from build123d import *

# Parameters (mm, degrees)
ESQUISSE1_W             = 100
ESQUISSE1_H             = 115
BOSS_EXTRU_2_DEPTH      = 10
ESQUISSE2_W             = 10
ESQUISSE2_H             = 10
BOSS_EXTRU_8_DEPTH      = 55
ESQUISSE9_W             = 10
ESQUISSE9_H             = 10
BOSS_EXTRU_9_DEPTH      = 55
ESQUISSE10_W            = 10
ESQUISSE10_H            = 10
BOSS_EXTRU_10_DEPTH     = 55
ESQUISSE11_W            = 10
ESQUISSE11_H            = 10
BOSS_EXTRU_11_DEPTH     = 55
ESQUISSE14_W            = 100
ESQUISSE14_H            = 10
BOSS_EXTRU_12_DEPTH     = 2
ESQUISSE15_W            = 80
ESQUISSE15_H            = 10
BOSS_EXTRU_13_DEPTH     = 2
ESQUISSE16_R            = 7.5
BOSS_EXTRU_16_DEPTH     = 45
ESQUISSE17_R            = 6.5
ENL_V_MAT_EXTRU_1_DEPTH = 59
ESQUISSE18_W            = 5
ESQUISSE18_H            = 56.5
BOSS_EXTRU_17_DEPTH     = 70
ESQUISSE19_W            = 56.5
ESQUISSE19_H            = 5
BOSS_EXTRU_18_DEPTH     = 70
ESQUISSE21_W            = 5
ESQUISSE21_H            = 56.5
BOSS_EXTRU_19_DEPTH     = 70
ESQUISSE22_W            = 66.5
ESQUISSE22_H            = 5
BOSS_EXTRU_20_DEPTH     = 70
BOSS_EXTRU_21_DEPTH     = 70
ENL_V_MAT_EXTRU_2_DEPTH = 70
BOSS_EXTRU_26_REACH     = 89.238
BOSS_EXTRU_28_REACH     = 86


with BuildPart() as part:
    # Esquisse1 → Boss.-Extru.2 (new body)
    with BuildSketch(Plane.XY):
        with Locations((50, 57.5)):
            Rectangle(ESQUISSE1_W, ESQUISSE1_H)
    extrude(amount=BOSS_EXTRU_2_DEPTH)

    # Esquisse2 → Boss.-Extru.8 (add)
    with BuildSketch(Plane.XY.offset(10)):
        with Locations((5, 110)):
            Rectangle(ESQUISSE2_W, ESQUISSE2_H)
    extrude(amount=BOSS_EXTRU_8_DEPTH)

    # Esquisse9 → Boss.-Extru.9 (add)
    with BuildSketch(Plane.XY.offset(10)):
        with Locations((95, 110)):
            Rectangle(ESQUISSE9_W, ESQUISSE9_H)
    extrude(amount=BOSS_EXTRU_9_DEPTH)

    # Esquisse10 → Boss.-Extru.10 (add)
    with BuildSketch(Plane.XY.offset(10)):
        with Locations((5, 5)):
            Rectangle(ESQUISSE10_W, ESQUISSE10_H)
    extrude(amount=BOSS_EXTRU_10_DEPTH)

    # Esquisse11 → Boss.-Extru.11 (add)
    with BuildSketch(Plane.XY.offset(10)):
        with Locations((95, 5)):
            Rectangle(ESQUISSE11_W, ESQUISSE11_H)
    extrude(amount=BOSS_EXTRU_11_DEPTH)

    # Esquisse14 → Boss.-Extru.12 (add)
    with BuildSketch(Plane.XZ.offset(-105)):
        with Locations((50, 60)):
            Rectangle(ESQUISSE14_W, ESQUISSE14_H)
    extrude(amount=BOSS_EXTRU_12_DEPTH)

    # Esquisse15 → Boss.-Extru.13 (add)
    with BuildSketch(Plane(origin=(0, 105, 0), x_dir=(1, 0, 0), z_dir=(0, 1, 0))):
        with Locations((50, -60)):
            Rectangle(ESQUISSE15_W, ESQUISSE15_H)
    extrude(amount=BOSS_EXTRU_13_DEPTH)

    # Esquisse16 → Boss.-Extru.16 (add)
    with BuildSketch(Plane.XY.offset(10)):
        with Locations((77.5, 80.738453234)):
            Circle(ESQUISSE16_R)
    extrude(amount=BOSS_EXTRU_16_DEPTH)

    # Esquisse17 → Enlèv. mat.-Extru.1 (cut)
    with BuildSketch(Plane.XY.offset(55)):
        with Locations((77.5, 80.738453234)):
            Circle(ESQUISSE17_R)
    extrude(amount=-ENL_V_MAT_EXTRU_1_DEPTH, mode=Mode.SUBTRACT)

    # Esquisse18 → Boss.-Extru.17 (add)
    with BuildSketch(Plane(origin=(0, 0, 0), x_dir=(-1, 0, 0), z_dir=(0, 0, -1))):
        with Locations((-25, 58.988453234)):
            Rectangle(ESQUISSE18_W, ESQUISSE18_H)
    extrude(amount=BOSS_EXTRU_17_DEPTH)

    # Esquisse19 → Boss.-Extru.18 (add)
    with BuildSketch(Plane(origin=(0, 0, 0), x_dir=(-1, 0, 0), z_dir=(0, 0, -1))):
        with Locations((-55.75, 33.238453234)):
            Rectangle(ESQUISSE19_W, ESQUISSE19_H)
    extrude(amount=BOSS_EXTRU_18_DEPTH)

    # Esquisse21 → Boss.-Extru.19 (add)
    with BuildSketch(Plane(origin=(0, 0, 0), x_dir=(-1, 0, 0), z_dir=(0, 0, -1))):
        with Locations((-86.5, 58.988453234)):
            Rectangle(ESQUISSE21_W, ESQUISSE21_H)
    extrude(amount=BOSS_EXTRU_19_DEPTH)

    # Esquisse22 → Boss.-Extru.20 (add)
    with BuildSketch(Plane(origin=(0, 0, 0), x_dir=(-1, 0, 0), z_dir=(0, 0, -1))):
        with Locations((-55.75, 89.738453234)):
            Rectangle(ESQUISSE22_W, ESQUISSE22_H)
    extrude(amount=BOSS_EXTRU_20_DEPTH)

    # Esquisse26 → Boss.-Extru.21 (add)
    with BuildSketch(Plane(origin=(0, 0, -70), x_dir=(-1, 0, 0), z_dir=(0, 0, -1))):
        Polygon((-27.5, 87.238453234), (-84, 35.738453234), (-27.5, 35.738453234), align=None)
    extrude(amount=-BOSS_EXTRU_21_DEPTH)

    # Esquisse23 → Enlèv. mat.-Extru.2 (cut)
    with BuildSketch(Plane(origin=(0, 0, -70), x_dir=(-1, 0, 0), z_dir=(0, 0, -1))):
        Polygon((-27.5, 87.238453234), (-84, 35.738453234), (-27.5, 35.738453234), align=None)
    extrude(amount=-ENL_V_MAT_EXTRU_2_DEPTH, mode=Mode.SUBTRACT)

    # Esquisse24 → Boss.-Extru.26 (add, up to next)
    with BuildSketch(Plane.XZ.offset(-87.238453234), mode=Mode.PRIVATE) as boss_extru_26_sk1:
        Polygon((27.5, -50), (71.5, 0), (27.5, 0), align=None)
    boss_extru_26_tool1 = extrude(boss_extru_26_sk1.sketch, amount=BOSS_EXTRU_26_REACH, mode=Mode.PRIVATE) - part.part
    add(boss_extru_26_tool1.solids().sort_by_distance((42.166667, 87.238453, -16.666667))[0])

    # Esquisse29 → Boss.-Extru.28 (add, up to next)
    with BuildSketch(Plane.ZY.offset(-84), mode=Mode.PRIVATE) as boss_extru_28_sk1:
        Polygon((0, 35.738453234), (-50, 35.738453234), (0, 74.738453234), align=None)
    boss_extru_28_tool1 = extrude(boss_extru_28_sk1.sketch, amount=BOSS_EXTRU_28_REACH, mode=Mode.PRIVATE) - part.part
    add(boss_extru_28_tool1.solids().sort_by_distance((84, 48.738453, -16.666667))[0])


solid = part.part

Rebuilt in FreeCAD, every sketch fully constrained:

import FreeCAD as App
import Part
import Sketcher
Q = App.Units.Quantity

doc = App.newDocument("Part")
body = doc.addObject("PartDesign::Body", "Body")

sketch1 = body.newObject("Sketcher::SketchObject", "Sketch")
sketch1.AttachmentSupport = (doc.getObject("XY_Plane"), [""])
sketch1.MapMode = "FlatFace"
sketch1.addGeometry([
    Part.LineSegment(App.Vector(0, 115, 0), App.Vector(0, 0, 0)),
    Part.LineSegment(App.Vector(0, 0, 0), App.Vector(100, 0, 0)),
    Part.LineSegment(App.Vector(100, 0, 0), App.Vector(100, 115, 0)),
    Part.LineSegment(App.Vector(100, 115, 0), App.Vector(0, 115, 0)),
], False)
sketch1.addConstraint([
    Sketcher.Constraint("Coincident", 0, 2, 1, 1),
    Sketcher.Constraint("Coincident", 1, 2, 2, 1),
    Sketcher.Constraint("Coincident", 2, 2, 3, 1),
    Sketcher.Constraint("Coincident", 3, 2, 0, 1),
    Sketcher.Constraint("Vertical", 0),
    Sketcher.Constraint("Horizontal", 1),
    Sketcher.Constraint("Vertical", 2),
    Sketcher.Constraint("Horizontal", 3),
    Sketcher.Constraint("Coincident", 0, 2, -1, 1),
    Sketcher.Constraint("DistanceX", 1, 1, 1, 2, Q("100 mm")),
    Sketcher.Constraint("DistanceY", 0, 2, 0, 1, Q("115 mm")),
])
pad1 = body.newObject("PartDesign::Pad", "Pad")
pad1.Profile = sketch1
pad1.Length = 10

sketch2 = body.newObject("Sketcher::SketchObject", "Sketch001")
sketch2.AttachmentSupport = (doc.getObject("XY_Plane"), [""])
sketch2.MapMode = "FlatFace"
sketch2.AttachmentOffset = App.Placement(App.Vector(0, 0, 10), App.Rotation())
sketch2.addGeometry([
    Part.LineSegment(App.Vector(0, 115, 0), App.Vector(0, 105, 0)),
    Part.LineSegment(App.Vector(0, 105, 0), App.Vector(10, 105, 0)),
    Part.LineSegment(App.Vector(10, 105, 0), App.Vector(10, 115, 0)),
    Part.LineSegment(App.Vector(10, 115, 0), App.Vector(0, 115, 0)),
], False)
sketch2.addConstraint([
    Sketcher.Constraint("Coincident", 0, 2, 1, 1),
    Sketcher.Constraint("Coincident", 1, 2, 2, 1),
    Sketcher.Constraint("Coincident", 2, 2, 3, 1),
    Sketcher.Constraint("Coincident", 3, 2, 0, 1),
    Sketcher.Constraint("Vertical", 0),
    Sketcher.Constraint("Horizontal", 1),
    Sketcher.Constraint("Vertical", 2),
    Sketcher.Constraint("Horizontal", 3),
    Sketcher.Constraint("PointOnObject", 0, 2, -2),
    Sketcher.Constraint("Equal", 3, 0),
    Sketcher.Constraint("DistanceX", 1, 1, 1, 2, Q("10 mm")),
    Sketcher.Constraint("DistanceY", -1, 1, 0, 2, Q("105 mm")),
])
pad2 = body.newObject("PartDesign::Pad", "Pad001")
pad2.Profile = sketch2
pad2.Length = 55

sketch3 = body.newObject("Sketcher::SketchObject", "Sketch002")
sketch3.AttachmentSupport = (doc.getObject("XY_Plane"), [""])
sketch3.MapMode = "FlatFace"
sketch3.AttachmentOffset = App.Placement(App.Vector(0, 0, 10), App.Rotation())
sketch3.addGeometry([
    Part.LineSegment(App.Vector(90, 115, 0), App.Vector(90, 105, 0)),
    Part.LineSegment(App.Vector(90, 105, 0), App.Vector(100, 105, 0)),
    Part.LineSegment(App.Vector(100, 105, 0), App.Vector(100, 115, 0)),
    Part.LineSegment(App.Vector(100, 115, 0), App.Vector(90, 115, 0)),
], False)
sketch3.addConstraint([
    Sketcher.Constraint("Coincident", 0, 2, 1, 1),
    Sketcher.Constraint("Coincident", 1, 2, 2, 1),
    Sketcher.Constraint("Coincident", 2, 2, 3, 1),
    Sketcher.Constraint("Coincident", 3, 2, 0, 1),
    Sketcher.Constraint("Vertical", 0),
    Sketcher.Constraint("Horizontal", 1),
    Sketcher.Constraint("Vertical", 2),
    Sketcher.Constraint("Horizontal", 3),
    Sketcher.Constraint("Equal", 3, 0),
    Sketcher.Constraint("DistanceX", 1, 1, 1, 2, Q("10 mm")),
    Sketcher.Constraint("DistanceX", -1, 1, 0, 2, Q("90 mm")),
    Sketcher.Constraint("DistanceY", -1, 1, 0, 2, Q("105 mm")),
])
pad3 = body.newObject("PartDesign::Pad", "Pad002")
pad3.Profile = sketch3
pad3.Length = 55

sketch4 = body.newObject("Sketcher::SketchObject", "Sketch003")
sketch4.AttachmentSupport = (doc.getObject("XY_Plane"), [""])
sketch4.MapMode = "FlatFace"
sketch4.AttachmentOffset = App.Placement(App.Vector(0, 0, 10), App.Rotation())
sketch4.addGeometry([
    Part.LineSegment(App.Vector(0, 10, 0), App.Vector(0, 0, 0)),
    Part.LineSegment(App.Vector(0, 0, 0), App.Vector(10, 0, 0)),
    Part.LineSegment(App.Vector(10, 0, 0), App.Vector(10, 10, 0)),
    Part.LineSegment(App.Vector(10, 10, 0), App.Vector(0, 10, 0)),
], False)
sketch4.addConstraint([
    Sketcher.Constraint("Coincident", 0, 2, 1, 1),
    Sketcher.Constraint("Coincident", 1, 2, 2, 1),
    Sketcher.Constraint("Coincident", 2, 2, 3, 1),
    Sketcher.Constraint("Coincident", 3, 2, 0, 1),
    Sketcher.Constraint("Vertical", 0),
    Sketcher.Constraint("Horizontal", 1),
    Sketcher.Constraint("Vertical", 2),
    Sketcher.Constraint("Horizontal", 3),
    Sketcher.Constraint("Coincident", 0, 2, -1, 1),
    Sketcher.Constraint("Equal", 3, 0),
    Sketcher.Constraint("DistanceX", 1, 1, 1, 2, Q("10 mm")),
])
pad4 = body.newObject("PartDesign::Pad", "Pad003")
pad4.Profile = sketch4
pad4.Length = 55

sketch5 = body.newObject("Sketcher::SketchObject", "Sketch004")
sketch5.AttachmentSupport = (doc.getObject("XY_Plane"), [""])
sketch5.MapMode = "FlatFace"
sketch5.AttachmentOffset = App.Placement(App.Vector(0, 0, 10), App.Rotation())
sketch5.addGeometry([
    Part.LineSegment(App.Vector(90, 10, 0), App.Vector(90, 0, 0)),
    Part.LineSegment(App.Vector(90, 0, 0), App.Vector(100, 0, 0)),
    Part.LineSegment(App.Vector(100, 0, 0), App.Vector(100, 10, 0)),
    Part.LineSegment(App.Vector(100, 10, 0), App.Vector(90, 10, 0)),
], False)
sketch5.addConstraint([
    Sketcher.Constraint("Coincident", 0, 2, 1, 1),
    Sketcher.Constraint("Coincident", 1, 2, 2, 1),
    Sketcher.Constraint("Coincident", 2, 2, 3, 1),
    Sketcher.Constraint("Coincident", 3, 2, 0, 1),
    Sketcher.Constraint("Vertical", 0),
    Sketcher.Constraint("Horizontal", 1),
    Sketcher.Constraint("Vertical", 2),
    Sketcher.Constraint("Horizontal", 3),
    Sketcher.Constraint("PointOnObject", 0, 2, -1),
    Sketcher.Constraint("Equal", 3, 0),
    Sketcher.Constraint("DistanceX", 1, 1, 1, 2, Q("10 mm")),
    Sketcher.Constraint("DistanceX", -1, 1, 0, 2, Q("90 mm")),
])
pad5 = body.newObject("PartDesign::Pad", "Pad004")
pad5.Profile = sketch5
pad5.Length = 55

sketch6 = body.newObject("Sketcher::SketchObject", "Sketch005")
sketch6.AttachmentSupport = (doc.getObject("XZ_Plane"), [""])
sketch6.MapMode = "FlatFace"
sketch6.AttachmentOffset = App.Placement(App.Vector(0, 0, -105), App.Rotation())
sketch6.addGeometry([
    Part.LineSegment(App.Vector(0, 65, 0), App.Vector(0, 55, 0)),
    Part.LineSegment(App.Vector(0, 55, 0), App.Vector(100, 55, 0)),
    Part.LineSegment(App.Vector(100, 55, 0), App.Vector(100, 65, 0)),
    Part.LineSegment(App.Vector(100, 65, 0), App.Vector(0, 65, 0)),
], False)
sketch6.addConstraint([
    Sketcher.Constraint("Coincident", 0, 2, 1, 1),
    Sketcher.Constraint("Coincident", 1, 2, 2, 1),
    Sketcher.Constraint("Coincident", 2, 2, 3, 1),
    Sketcher.Constraint("Coincident", 3, 2, 0, 1),
    Sketcher.Constraint("Vertical", 0),
    Sketcher.Constraint("Horizontal", 1),
    Sketcher.Constraint("Vertical", 2),
    Sketcher.Constraint("Horizontal", 3),
    Sketcher.Constraint("PointOnObject", 0, 2, -2),
    Sketcher.Constraint("DistanceX", 1, 1, 1, 2, Q("100 mm")),
    Sketcher.Constraint("DistanceY", 0, 2, 0, 1, Q("10 mm")),
    Sketcher.Constraint("DistanceY", -1, 1, 0, 2, Q("55 mm")),
])
pad6 = body.newObject("PartDesign::Pad", "Pad005")
pad6.Profile = sketch6
pad6.Length = 2

sketch7 = body.newObject("Sketcher::SketchObject", "Sketch006")
sketch7.AttachmentSupport = (doc.getObject("XZ_Plane"), [""])
sketch7.MapMode = "FlatFace"
sketch7.AttachmentOffset = App.Placement(App.Vector(0, 0, -105), App.Rotation())
sketch7.addGeometry([
    Part.LineSegment(App.Vector(10, 55, 0), App.Vector(10, 65, 0)),
    Part.LineSegment(App.Vector(10, 65, 0), App.Vector(90, 65, 0)),
    Part.LineSegment(App.Vector(90, 65, 0), App.Vector(90, 55, 0)),
    Part.LineSegment(App.Vector(90, 55, 0), App.Vector(10, 55, 0)),
], False)
sketch7.addConstraint([
    Sketcher.Constraint("Coincident", 0, 2, 1, 1),
    Sketcher.Constraint("Coincident", 1, 2, 2, 1),
    Sketcher.Constraint("Coincident", 2, 2, 3, 1),
    Sketcher.Constraint("Coincident", 3, 2, 0, 1),
    Sketcher.Constraint("Vertical", 0),
    Sketcher.Constraint("Horizontal", 1),
    Sketcher.Constraint("Vertical", 2),
    Sketcher.Constraint("Horizontal", 3),
    Sketcher.Constraint("DistanceX", 1, 1, 1, 2, Q("80 mm")),
    Sketcher.Constraint("DistanceY", 0, 1, 0, 2, Q("10 mm")),
    Sketcher.Constraint("DistanceX", -1, 1, 0, 2, Q("10 mm")),
    Sketcher.Constraint("DistanceY", -1, 1, 0, 2, Q("65 mm")),
])
pad7 = body.newObject("PartDesign::Pad", "Pad006")
pad7.Profile = sketch7
pad7.Length = 2
pad7.Reversed = True

sketch8 = body.newObject("Sketcher::SketchObject", "Sketch007")
sketch8.AttachmentSupport = (doc.getObject("XY_Plane"), [""])
sketch8.MapMode = "FlatFace"
sketch8.AttachmentOffset = App.Placement(App.Vector(0, 0, 10), App.Rotation())
sketch8.addGeometry(Part.Circle(App.Vector(78, 81, 0), App.Vector(0, 0, 1), 8), False)
sketch8.addConstraint([
    Sketcher.Constraint("Diameter", 0, Q("15 mm")),
    Sketcher.Constraint("DistanceX", -1, 1, 0, 3, Q("77.5 mm")),
    Sketcher.Constraint("DistanceY", -1, 1, 0, 3, Q("80.738453 mm")),
])
pad8 = body.newObject("PartDesign::Pad", "Pad007")
pad8.Profile = sketch8
pad8.Length = 45

sketch9 = body.newObject("Sketcher::SketchObject", "Sketch008")
sketch9.AttachmentSupport = (doc.getObject("XY_Plane"), [""])
sketch9.MapMode = "FlatFace"
sketch9.AttachmentOffset = App.Placement(App.Vector(0, 0, 55), App.Rotation())
sketch9.addGeometry(Part.Circle(App.Vector(78, 81, 0), App.Vector(0, 0, 1), 6), False)
sketch9.addConstraint([
    Sketcher.Constraint("Diameter", 0, Q("13 mm")),
    Sketcher.Constraint("DistanceX", -1, 1, 0, 3, Q("77.5 mm")),
    Sketcher.Constraint("DistanceY", -1, 1, 0, 3, Q("80.738453 mm")),
])
pocket1 = body.newObject("PartDesign::Pocket", "Pocket")
pocket1.Profile = sketch9
pocket1.Length = 59

sketch10 = body.newObject("Sketcher::SketchObject", "Sketch009")
sketch10.AttachmentSupport = (doc.getObject("XY_Plane"), [""])
sketch10.MapMode = "FlatFace"
sketch10.addGeometry([
    Part.LineSegment(App.Vector(28, 87, 0), App.Vector(28, 31, 0)),
    Part.LineSegment(App.Vector(28, 31, 0), App.Vector(22, 31, 0)),
    Part.LineSegment(App.Vector(22, 31, 0), App.Vector(22, 87, 0)),
    Part.LineSegment(App.Vector(22, 87, 0), App.Vector(28, 87, 0)),
], False)
sketch10.addConstraint([
    Sketcher.Constraint("Coincident", 0, 2, 1, 1),
    Sketcher.Constraint("Coincident", 1, 2, 2, 1),
    Sketcher.Constraint("Coincident", 2, 2, 3, 1),
    Sketcher.Constraint("Coincident", 3, 2, 0, 1),
    Sketcher.Constraint("Vertical", 0),
    Sketcher.Constraint("Horizontal", 1),
    Sketcher.Constraint("Vertical", 2),
    Sketcher.Constraint("Horizontal", 3),
    Sketcher.Constraint("DistanceX", 1, 2, 1, 1, Q("5 mm")),
    Sketcher.Constraint("DistanceY", 0, 2, 0, 1, Q("56.5 mm")),
    Sketcher.Constraint("DistanceX", -1, 1, 0, 2, Q("27.5 mm")),
    Sketcher.Constraint("DistanceY", -1, 1, 0, 2, Q("30.738453 mm")),
])
pad9 = body.newObject("PartDesign::Pad", "Pad008")
pad9.Profile = sketch10
pad9.Length = 70
pad9.Reversed = True

sketch11 = body.newObject("Sketcher::SketchObject", "Sketch010")
sketch11.AttachmentSupport = (doc.getObject("XY_Plane"), [""])
sketch11.MapMode = "FlatFace"
sketch11.addGeometry([
    Part.LineSegment(App.Vector(84, 35.7, 0), App.Vector(84, 30.7, 0)),
    Part.LineSegment(App.Vector(84, 30.7, 0), App.Vector(27.5, 30.7, 0)),
    Part.LineSegment(App.Vector(27.5, 30.7, 0), App.Vector(27.5, 35.7, 0)),
    Part.LineSegment(App.Vector(27.5, 35.7, 0), App.Vector(84, 35.7, 0)),
], False)
sketch11.addConstraint([
    Sketcher.Constraint("Coincident", 0, 2, 1, 1),
    Sketcher.Constraint("Coincident", 1, 2, 2, 1),
    Sketcher.Constraint("Coincident", 2, 2, 3, 1),
    Sketcher.Constraint("Coincident", 3, 2, 0, 1),
    Sketcher.Constraint("Vertical", 0),
    Sketcher.Constraint("Horizontal", 1),
    Sketcher.Constraint("Vertical", 2),
    Sketcher.Constraint("Horizontal", 3),
    Sketcher.Constraint("DistanceY", 0, 2, 0, 1, Q("5 mm")),
    Sketcher.Constraint("DistanceX", 1, 2, 1, 1, Q("56.5 mm")),
    Sketcher.Constraint("DistanceX", -1, 1, 0, 2, Q("84 mm")),
    Sketcher.Constraint("DistanceY", -1, 1, 0, 2, Q("30.738453 mm")),
])
pad10 = body.newObject("PartDesign::Pad", "Pad009")
pad10.Profile = sketch11
pad10.Length = 70
pad10.Reversed = True

sketch12 = body.newObject("Sketcher::SketchObject", "Sketch011")
sketch12.AttachmentSupport = (doc.getObject("XY_Plane"), [""])
sketch12.MapMode = "FlatFace"
sketch12.addGeometry([
    Part.LineSegment(App.Vector(89, 87, 0), App.Vector(89, 31, 0)),
    Part.LineSegment(App.Vector(89, 31, 0), App.Vector(84, 31, 0)),
    Part.LineSegment(App.Vector(84, 31, 0), App.Vector(84, 87, 0)),
    Part.LineSegment(App.Vector(84, 87, 0), App.Vector(89, 87, 0)),
], False)
sketch12.addConstraint([
    Sketcher.Constraint("Coincident", 0, 2, 1, 1),
    Sketcher.Constraint("Coincident", 1, 2, 2, 1),
    Sketcher.Constraint("Coincident", 2, 2, 3, 1),
    Sketcher.Constraint("Coincident", 3, 2, 0, 1),
    Sketcher.Constraint("Vertical", 0),
    Sketcher.Constraint("Horizontal", 1),
    Sketcher.Constraint("Vertical", 2),
    Sketcher.Constraint("Horizontal", 3),
    Sketcher.Constraint("DistanceX", 1, 2, 1, 1, Q("5 mm")),
    Sketcher.Constraint("DistanceY", 0, 2, 0, 1, Q("56.5 mm")),
    Sketcher.Constraint("DistanceX", -1, 1, 0, 2, Q("89 mm")),
    Sketcher.Constraint("DistanceY", -1, 1, 0, 2, Q("30.738453 mm")),
])
pad11 = body.newObject("PartDesign::Pad", "Pad010")
pad11.Profile = sketch12
pad11.Length = 70
pad11.Reversed = True

sketch13 = body.newObject("Sketcher::SketchObject", "Sketch012")
sketch13.AttachmentSupport = (doc.getObject("XY_Plane"), [""])
sketch13.MapMode = "FlatFace"
sketch13.addGeometry([
    Part.LineSegment(App.Vector(89, 92, 0), App.Vector(89, 87, 0)),
    Part.LineSegment(App.Vector(89, 87, 0), App.Vector(22, 87, 0)),
    Part.LineSegment(App.Vector(22, 87, 0), App.Vector(22, 92, 0)),
    Part.LineSegment(App.Vector(22, 92, 0), App.Vector(89, 92, 0)),
], False)
sketch13.addConstraint([
    Sketcher.Constraint("Coincident", 0, 2, 1, 1),
    Sketcher.Constraint("Coincident", 1, 2, 2, 1),
    Sketcher.Constraint("Coincident", 2, 2, 3, 1),
    Sketcher.Constraint("Coincident", 3, 2, 0, 1),
    Sketcher.Constraint("Vertical", 0),
    Sketcher.Constraint("Horizontal", 1),
    Sketcher.Constraint("Vertical", 2),
    Sketcher.Constraint("Horizontal", 3),
    Sketcher.Constraint("DistanceY", 0, 2, 0, 1, Q("5 mm")),
    Sketcher.Constraint("DistanceX", 1, 2, 1, 1, Q("66.5 mm")),
    Sketcher.Constraint("DistanceX", -1, 1, 0, 2, Q("89 mm")),
    Sketcher.Constraint("DistanceY", -1, 1, 0, 2, Q("87.238453 mm")),
])
pad12 = body.newObject("PartDesign::Pad", "Pad011")
pad12.Profile = sketch13
pad12.Length = 70
pad12.Reversed = True

sketch14 = body.newObject("Sketcher::SketchObject", "Sketch013")
sketch14.AttachmentSupport = (doc.getObject("XY_Plane"), [""])
sketch14.MapMode = "FlatFace"
sketch14.AttachmentOffset = App.Placement(App.Vector(0, 0, -70), App.Rotation())
sketch14.addGeometry([
    Part.LineSegment(App.Vector(28, 87, 0), App.Vector(84, 36, 0)),
    Part.LineSegment(App.Vector(84, 36, 0), App.Vector(28, 36, 0)),
    Part.LineSegment(App.Vector(28, 36, 0), App.Vector(28, 87, 0)),
], False)
sketch14.addConstraint([
    Sketcher.Constraint("Coincident", 0, 2, 1, 1),
    Sketcher.Constraint("Coincident", 1, 2, 2, 1),
    Sketcher.Constraint("Coincident", 2, 2, 0, 1),
    Sketcher.Constraint("Horizontal", 1),
    Sketcher.Constraint("Vertical", 2),
    Sketcher.Constraint("DistanceX", 1, 2, 1, 1, Q("56.5 mm")),
    Sketcher.Constraint("DistanceY", 2, 1, 2, 2, Q("51.5 mm")),
    Sketcher.Constraint("DistanceX", -1, 1, 0, 2, Q("84 mm")),
    Sketcher.Constraint("DistanceY", -1, 1, 0, 2, Q("35.738453 mm")),
])
pad13 = body.newObject("PartDesign::Pad", "Pad012")
pad13.Profile = sketch14
pad13.Length = 70

sketch15 = body.newObject("Sketcher::SketchObject", "Sketch014")
sketch15.AttachmentSupport = (doc.getObject("XY_Plane"), [""])
sketch15.MapMode = "FlatFace"
sketch15.AttachmentOffset = App.Placement(App.Vector(0, 0, -70), App.Rotation())
sketch15.addGeometry([
    Part.LineSegment(App.Vector(28, 87, 0), App.Vector(84, 36, 0)),
    Part.LineSegment(App.Vector(84, 36, 0), App.Vector(28, 36, 0)),
    Part.LineSegment(App.Vector(28, 36, 0), App.Vector(28, 87, 0)),
], False)
sketch15.addConstraint([
    Sketcher.Constraint("Coincident", 0, 2, 1, 1),
    Sketcher.Constraint("Coincident", 1, 2, 2, 1),
    Sketcher.Constraint("Coincident", 2, 2, 0, 1),
    Sketcher.Constraint("Horizontal", 1),
    Sketcher.Constraint("Vertical", 2),
    Sketcher.Constraint("DistanceX", 1, 2, 1, 1, Q("56.5 mm")),
    Sketcher.Constraint("DistanceY", 2, 1, 2, 2, Q("51.5 mm")),
    Sketcher.Constraint("DistanceX", -1, 1, 0, 2, Q("84 mm")),
    Sketcher.Constraint("DistanceY", -1, 1, 0, 2, Q("35.738453 mm")),
])
pocket2 = body.newObject("PartDesign::Pocket", "Pocket001")
pocket2.Profile = sketch15
pocket2.Length = 70
pocket2.Reversed = True

sketch16 = body.newObject("Sketcher::SketchObject", "Sketch015")
sketch16.AttachmentSupport = (doc.getObject("XZ_Plane"), [""])
sketch16.MapMode = "FlatFace"
sketch16.AttachmentOffset = App.Placement(App.Vector(0, 0, -87.238453), App.Rotation())
sketch16.addGeometry([
    Part.LineSegment(App.Vector(28, -50, 0), App.Vector(72, 0, 0)),
    Part.LineSegment(App.Vector(72, 0, 0), App.Vector(28, 0, 0)),
    Part.LineSegment(App.Vector(28, 0, 0), App.Vector(28, -50, 0)),
], False)
sketch16.addConstraint([
    Sketcher.Constraint("Coincident", 0, 2, 1, 1),
    Sketcher.Constraint("Coincident", 1, 2, 2, 1),
    Sketcher.Constraint("Coincident", 2, 2, 0, 1),
    Sketcher.Constraint("Horizontal", 1),
    Sketcher.Constraint("Vertical", 2),
    Sketcher.Constraint("PointOnObject", 0, 2, -1),
    Sketcher.Constraint("DistanceX", 1, 2, 1, 1, Q("44 mm")),
    Sketcher.Constraint("DistanceY", 2, 2, 2, 1, Q("50 mm")),
    Sketcher.Constraint("DistanceX", -1, 1, 0, 2, Q("71.5 mm")),
])
pad14 = body.newObject("PartDesign::Pad", "Pad013")
pad14.Profile = sketch16
pad14.Type = "UpToFirst"

sketch17 = body.newObject("Sketcher::SketchObject", "Sketch016")
sketch17.AttachmentSupport = (doc.getObject("YZ_Plane"), [""])
sketch17.MapMode = "FlatFace"
sketch17.AttachmentOffset = App.Placement(App.Vector(0, 0, 84), App.Rotation())
sketch17.addGeometry([
    Part.LineSegment(App.Vector(36, -50, 0), App.Vector(36, 0, 0)),
    Part.LineSegment(App.Vector(36, 0, 0), App.Vector(75, 0, 0)),
    Part.LineSegment(App.Vector(75, 0, 0), App.Vector(36, -50, 0)),
], False)
sketch17.addConstraint([
    Sketcher.Constraint("Coincident", 0, 2, 1, 1),
    Sketcher.Constraint("Coincident", 1, 2, 2, 1),
    Sketcher.Constraint("Coincident", 2, 2, 0, 1),
    Sketcher.Constraint("Vertical", 0),
    Sketcher.Constraint("Horizontal", 1),
    Sketcher.Constraint("PointOnObject", 0, 2, -1),
    Sketcher.Constraint("DistanceX", 1, 1, 1, 2, Q("39 mm")),
    Sketcher.Constraint("DistanceY", 0, 1, 0, 2, Q("50 mm")),
    Sketcher.Constraint("DistanceX", -1, 1, 0, 2, Q("35.738453 mm")),
])
pad15 = body.newObject("PartDesign::Pad", "Pad014")
pad15.Profile = sketch17
pad15.Type = "UpToFirst"
pad15.Reversed = True

doc.recompute()
